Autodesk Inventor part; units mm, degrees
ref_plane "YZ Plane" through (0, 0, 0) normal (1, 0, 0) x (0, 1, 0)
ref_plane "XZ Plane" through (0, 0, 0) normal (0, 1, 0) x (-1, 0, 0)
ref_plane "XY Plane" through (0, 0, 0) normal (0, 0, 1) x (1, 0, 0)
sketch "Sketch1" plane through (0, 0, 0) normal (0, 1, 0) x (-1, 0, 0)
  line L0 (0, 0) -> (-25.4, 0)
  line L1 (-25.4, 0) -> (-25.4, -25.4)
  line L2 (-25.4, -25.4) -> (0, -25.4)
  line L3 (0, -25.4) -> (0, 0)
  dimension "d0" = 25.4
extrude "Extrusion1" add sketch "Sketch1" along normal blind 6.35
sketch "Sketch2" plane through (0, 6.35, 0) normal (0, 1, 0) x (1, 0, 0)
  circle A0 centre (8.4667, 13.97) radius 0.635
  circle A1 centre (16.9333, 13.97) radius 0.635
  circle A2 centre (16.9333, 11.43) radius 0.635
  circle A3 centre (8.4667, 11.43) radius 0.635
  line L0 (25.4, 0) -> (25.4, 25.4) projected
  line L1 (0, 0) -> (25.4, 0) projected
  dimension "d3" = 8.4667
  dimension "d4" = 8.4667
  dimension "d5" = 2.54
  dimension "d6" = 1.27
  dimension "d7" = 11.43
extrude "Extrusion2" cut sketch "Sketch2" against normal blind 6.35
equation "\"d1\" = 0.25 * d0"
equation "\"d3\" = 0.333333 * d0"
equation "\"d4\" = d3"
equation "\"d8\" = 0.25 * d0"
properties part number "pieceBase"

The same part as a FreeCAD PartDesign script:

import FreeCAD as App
import Part
import Sketcher

V = App.Vector
Q = App.Units.Quantity

doc = App.newDocument("Part")
body = doc.addObject("PartDesign::Body", "Body")

# Sketch on XZ plane
sketch1 = body.newObject("Sketcher::SketchObject", "Sketch")
sketch1.AttachmentSupport = (doc.getObject("XZ_Plane"), [""])
sketch1.MapMode = "FlatFace"
sketch1.addGeometry(Part.LineSegment(V(0, -25, 0), V(0, 0, 0)), False)
sketch1.addGeometry(Part.LineSegment(V(0, 0, 0), V(25, 0, 0)), False)
sketch1.addGeometry(Part.LineSegment(V(25, 0, 0), V(25, -25, 0)), False)
sketch1.addGeometry(Part.LineSegment(V(25, -25, 0), V(0, -25, 0)), False)
sketch1.addConstraint(Sketcher.Constraint("Coincident", 0, 2, 1, 1))
sketch1.addConstraint(Sketcher.Constraint("Coincident", 1, 2, 2, 1))
sketch1.addConstraint(Sketcher.Constraint("Coincident", 2, 2, 3, 1))
sketch1.addConstraint(Sketcher.Constraint("Coincident", 3, 2, 0, 1))
sketch1.addConstraint(Sketcher.Constraint("Vertical", 0))
sketch1.addConstraint(Sketcher.Constraint("Horizontal", 1))
sketch1.addConstraint(Sketcher.Constraint("Vertical", 2))
sketch1.addConstraint(Sketcher.Constraint("Horizontal", 3))
sketch1.addConstraint(Sketcher.Constraint("Coincident", 0, 2, -1, 1))
sketch1.addConstraint(Sketcher.Constraint("Equal", 3, 0))
sketch1.addConstraint(Sketcher.Constraint("DistanceX", 1, 1, 1, 2, Q("1 in")))
pad1 = body.newObject("PartDesign::Pad", "Pad")
pad1.Profile = sketch1
pad1.Length = Q("0.25 in")
pad1.Reversed = True

# Sketch on XZ plane
sketch2 = body.newObject("Sketcher::SketchObject", "Sketch001")
sketch2.AttachmentSupport = (doc.getObject("XZ_Plane"), [""])
sketch2.MapMode = "FlatFace"
sketch2.AttachmentOffset = App.Placement(V(0, 0, -0.25 * 25.4), App.Rotation())
sketch2.addGeometry(Part.Circle(V(8.5, -14, 0), V(0, 0, 1), 0.6), False)
sketch2.addGeometry(Part.Circle(V(16.9, -14, 0), V(0, 0, 1), 0.6), False)
sketch2.addGeometry(Part.Circle(V(16.9, -11.4, 0), V(0, 0, 1), 0.6), False)
sketch2.addGeometry(Part.Circle(V(8.5, -11.4, 0), V(0, 0, 1), 0.6), False)
sketch2.addConstraint(Sketcher.Constraint("Equal", 0, 1))
sketch2.addConstraint(Sketcher.Constraint("Equal", 1, 2))
sketch2.addConstraint(Sketcher.Constraint("Equal", 2, 3))
sketch2.addConstraint(Sketcher.Constraint("Horizontal", 0, 3, 1, 3))
sketch2.addConstraint(Sketcher.Constraint("Horizontal", 2, 3, 3, 3))
sketch2.addConstraint(Sketcher.Constraint("Vertical", 1, 3, 2, 3))
sketch2.addConstraint(Sketcher.Constraint("Vertical", 0, 3, 3, 3))
sketch2.addConstraint(Sketcher.Constraint("Diameter", 0, Q("0.05 in")))
sketch2.addConstraint(Sketcher.Constraint("DistanceY", 1, 3, 2, 3, Q("0.1 in")))
sketch2.addConstraint(Sketcher.Constraint("DistanceY", 2, 3, -1, 1, Q("0.45 in")))
sketch2.addConstraint(Sketcher.Constraint("DistanceX", -1, 1, 0, 3, Q("8.4667 mm")))
sketch2.addConstraint(Sketcher.Constraint("DistanceX", 0, 3, 1, 3, Q("8.4666 mm")))
pocket1 = body.newObject("PartDesign::Pocket", "Pocket")
pocket1.Profile = sketch2
pocket1.Length = Q("0.25 in")
pocket1.Reversed = True

doc.recompute()
